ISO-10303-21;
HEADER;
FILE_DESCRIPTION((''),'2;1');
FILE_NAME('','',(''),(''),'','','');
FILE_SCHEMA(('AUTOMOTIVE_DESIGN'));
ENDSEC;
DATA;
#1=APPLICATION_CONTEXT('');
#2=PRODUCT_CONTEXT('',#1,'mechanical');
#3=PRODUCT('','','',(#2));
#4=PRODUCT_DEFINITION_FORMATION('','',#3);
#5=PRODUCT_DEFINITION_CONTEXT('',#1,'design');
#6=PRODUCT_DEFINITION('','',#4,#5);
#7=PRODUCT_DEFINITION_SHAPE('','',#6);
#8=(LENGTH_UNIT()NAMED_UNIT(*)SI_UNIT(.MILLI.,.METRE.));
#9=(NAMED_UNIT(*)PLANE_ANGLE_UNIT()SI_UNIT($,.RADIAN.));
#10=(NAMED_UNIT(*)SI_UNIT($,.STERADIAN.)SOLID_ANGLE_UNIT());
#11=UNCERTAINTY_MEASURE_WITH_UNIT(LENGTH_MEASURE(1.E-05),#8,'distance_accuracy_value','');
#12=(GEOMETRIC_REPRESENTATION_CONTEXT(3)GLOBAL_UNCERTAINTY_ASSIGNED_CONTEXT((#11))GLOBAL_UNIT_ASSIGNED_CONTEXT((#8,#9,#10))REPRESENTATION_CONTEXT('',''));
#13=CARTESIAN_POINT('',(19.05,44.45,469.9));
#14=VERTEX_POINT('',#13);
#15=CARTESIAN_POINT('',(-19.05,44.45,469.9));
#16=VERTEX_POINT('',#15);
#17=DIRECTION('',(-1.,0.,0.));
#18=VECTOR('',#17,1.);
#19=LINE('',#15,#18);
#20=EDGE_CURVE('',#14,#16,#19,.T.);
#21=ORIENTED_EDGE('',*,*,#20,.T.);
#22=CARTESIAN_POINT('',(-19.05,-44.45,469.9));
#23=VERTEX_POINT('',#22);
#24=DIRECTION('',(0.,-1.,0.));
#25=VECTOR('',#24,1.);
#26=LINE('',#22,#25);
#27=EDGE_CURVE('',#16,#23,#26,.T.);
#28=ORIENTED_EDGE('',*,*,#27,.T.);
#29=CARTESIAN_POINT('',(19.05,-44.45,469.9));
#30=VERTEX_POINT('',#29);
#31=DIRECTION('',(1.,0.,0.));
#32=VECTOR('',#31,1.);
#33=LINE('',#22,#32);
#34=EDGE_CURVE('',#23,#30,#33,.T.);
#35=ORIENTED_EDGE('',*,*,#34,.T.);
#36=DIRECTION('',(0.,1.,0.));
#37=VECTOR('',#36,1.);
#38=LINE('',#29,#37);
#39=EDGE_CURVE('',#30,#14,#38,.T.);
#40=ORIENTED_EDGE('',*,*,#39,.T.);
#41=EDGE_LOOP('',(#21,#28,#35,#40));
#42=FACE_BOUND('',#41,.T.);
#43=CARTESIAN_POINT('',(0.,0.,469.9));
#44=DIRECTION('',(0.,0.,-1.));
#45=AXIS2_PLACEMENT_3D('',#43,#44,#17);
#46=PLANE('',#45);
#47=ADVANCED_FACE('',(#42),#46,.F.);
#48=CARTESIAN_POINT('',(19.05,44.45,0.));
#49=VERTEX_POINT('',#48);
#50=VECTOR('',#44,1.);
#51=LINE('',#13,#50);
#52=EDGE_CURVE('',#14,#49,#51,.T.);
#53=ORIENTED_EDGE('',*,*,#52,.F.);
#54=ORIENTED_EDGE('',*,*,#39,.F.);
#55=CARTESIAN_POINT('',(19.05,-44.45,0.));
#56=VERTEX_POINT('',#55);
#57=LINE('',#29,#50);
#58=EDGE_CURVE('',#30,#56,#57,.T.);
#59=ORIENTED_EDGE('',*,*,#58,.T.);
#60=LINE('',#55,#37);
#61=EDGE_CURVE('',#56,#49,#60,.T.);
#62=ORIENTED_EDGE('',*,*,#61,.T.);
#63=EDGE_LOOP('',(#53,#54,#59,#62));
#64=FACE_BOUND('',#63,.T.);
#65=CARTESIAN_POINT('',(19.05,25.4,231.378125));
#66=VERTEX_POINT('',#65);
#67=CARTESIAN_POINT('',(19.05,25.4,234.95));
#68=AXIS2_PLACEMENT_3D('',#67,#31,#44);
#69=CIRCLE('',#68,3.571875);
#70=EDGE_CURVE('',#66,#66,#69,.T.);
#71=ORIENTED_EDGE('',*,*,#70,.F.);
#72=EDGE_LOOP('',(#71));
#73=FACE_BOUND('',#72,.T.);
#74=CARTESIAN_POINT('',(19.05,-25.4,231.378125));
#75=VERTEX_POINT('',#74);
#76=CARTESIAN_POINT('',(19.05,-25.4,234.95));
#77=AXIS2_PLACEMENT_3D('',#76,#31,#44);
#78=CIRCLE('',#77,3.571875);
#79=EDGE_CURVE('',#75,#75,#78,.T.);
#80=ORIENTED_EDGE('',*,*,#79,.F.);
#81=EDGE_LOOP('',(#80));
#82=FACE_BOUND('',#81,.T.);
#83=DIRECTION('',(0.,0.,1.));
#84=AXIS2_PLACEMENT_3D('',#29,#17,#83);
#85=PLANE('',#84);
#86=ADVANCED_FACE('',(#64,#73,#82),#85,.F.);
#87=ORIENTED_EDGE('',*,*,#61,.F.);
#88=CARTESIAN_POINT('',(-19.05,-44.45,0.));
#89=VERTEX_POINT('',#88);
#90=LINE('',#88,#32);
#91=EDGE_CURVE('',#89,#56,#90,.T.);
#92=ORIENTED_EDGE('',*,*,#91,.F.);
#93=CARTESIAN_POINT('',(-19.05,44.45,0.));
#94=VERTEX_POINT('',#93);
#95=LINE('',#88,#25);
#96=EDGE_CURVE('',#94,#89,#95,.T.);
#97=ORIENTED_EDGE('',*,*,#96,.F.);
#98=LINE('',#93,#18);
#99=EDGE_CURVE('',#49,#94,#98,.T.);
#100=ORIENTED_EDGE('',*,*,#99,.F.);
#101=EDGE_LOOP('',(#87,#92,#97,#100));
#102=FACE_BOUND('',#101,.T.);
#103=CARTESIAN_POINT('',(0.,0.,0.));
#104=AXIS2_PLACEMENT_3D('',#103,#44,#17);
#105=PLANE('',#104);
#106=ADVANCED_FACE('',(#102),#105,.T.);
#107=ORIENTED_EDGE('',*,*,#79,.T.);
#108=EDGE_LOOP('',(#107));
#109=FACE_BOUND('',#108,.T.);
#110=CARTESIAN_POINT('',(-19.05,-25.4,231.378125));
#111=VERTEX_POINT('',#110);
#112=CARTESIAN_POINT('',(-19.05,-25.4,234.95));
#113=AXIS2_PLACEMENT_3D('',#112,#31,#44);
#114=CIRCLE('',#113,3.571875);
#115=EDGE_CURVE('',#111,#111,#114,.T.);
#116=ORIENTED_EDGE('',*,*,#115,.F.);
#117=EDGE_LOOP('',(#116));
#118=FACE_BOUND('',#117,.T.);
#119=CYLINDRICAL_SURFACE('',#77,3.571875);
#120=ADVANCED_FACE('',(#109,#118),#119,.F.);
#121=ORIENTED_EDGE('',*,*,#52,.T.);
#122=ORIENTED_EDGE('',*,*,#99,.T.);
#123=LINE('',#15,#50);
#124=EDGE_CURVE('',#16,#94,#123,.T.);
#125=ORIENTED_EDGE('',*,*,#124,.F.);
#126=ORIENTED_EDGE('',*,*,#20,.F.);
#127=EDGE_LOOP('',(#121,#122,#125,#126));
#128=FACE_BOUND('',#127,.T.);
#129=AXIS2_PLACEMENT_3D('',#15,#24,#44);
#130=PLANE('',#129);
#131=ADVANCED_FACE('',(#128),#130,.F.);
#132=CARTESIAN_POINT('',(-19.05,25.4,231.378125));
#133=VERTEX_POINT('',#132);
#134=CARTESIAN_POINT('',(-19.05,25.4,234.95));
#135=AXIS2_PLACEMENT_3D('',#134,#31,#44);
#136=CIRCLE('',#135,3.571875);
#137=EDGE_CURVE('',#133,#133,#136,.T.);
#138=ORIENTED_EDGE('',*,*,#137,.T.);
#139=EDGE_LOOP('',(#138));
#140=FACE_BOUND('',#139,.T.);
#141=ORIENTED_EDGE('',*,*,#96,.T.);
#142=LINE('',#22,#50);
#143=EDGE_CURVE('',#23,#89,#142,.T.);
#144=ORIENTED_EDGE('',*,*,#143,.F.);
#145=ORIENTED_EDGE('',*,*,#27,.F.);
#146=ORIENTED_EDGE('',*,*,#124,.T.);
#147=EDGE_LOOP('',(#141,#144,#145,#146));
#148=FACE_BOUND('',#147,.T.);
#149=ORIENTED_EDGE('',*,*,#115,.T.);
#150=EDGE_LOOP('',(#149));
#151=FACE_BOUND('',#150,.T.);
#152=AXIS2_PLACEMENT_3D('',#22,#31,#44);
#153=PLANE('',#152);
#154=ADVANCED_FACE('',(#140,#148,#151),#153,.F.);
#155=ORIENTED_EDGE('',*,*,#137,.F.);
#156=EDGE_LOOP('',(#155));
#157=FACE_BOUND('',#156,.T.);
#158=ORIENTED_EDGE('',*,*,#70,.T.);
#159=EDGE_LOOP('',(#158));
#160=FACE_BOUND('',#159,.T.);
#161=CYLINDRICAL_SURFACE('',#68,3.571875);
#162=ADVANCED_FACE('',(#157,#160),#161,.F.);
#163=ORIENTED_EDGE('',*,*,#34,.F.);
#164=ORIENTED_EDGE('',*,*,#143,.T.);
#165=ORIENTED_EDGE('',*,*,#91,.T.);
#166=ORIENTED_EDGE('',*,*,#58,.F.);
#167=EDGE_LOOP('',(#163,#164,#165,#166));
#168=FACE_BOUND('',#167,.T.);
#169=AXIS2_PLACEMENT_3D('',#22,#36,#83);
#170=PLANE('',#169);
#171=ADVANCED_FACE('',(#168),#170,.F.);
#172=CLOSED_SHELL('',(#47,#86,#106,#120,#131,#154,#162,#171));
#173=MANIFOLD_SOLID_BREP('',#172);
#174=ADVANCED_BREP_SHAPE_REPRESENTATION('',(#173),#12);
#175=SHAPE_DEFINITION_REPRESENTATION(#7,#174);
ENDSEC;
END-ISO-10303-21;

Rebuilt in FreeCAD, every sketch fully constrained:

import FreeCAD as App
import Part
import Sketcher
from FreeCAD import Vector
Q = App.Units.Quantity


def add_polygon(sketch, points):
    """Adds a closed chain of lines whose ends are joined by coincident constraints."""
    first, n = sketch.GeometryCount, len(points)
    for a, b in zip(points, points[1:] + points[:1]):
        sketch.addGeometry(Part.LineSegment(App.Vector(*a, 0), App.Vector(*b, 0)), False)
    for i in range(n):
        sketch.addConstraint(Sketcher.Constraint("Coincident", first + i, 2, first + (i + 1) % n, 1))

doc = App.newDocument("Part")
body = doc.addObject("PartDesign::Body", "Body")

# Sketch on XY plane
sketch1 = body.newObject("Sketcher::SketchObject", "Sketch")
sketch1.AttachmentSupport = (doc.getObject("XY_Plane"), [""])
sketch1.MapMode = "FlatFace"
add_polygon(sketch1, [(-19.05, 44.45), (-19.05, -44.45), (19.05, -44.45), (19.05, 44.45)])  # lines 0-3
sketch1.addConstraint([
    Sketcher.Constraint("Vertical", 0),
    Sketcher.Constraint("Horizontal", 1),
    Sketcher.Constraint("Vertical", 2),
    Sketcher.Constraint("Horizontal", 3),
    Sketcher.Constraint("Symmetric", 0, 2, 2, 2, -1, 1),
    Sketcher.Constraint("DistanceX", 1, 1, 1, 2, Q("1.5 in")),
    Sketcher.Constraint("DistanceY", 0, 2, 0, 1, Q("3.5 in")),
])
pad1 = body.newObject("PartDesign::Pad", "Pad")
pad1.Profile = sketch1
pad1.Length = Q("18.5 in")

# Sketch on YZ plane
sketch2 = body.newObject("Sketcher::SketchObject", "Sketch001")
sketch2.AttachmentSupport = (doc.getObject("YZ_Plane"), [""])
sketch2.MapMode = "FlatFace"
sketch2.AttachmentOffset = App.Placement(Vector(0, 0, 0.75 * 25.4), App.Rotation())
sketch2.addGeometry([
    Part.Circle(Vector(25.4, 234.95, 0), Vector(0, 0, 1), 3.571875),
    Part.Circle(Vector(-25.4, 234.95, 0), Vector(0, 0, 1), 3.571875),
], False)
sketch2.addConstraint([
    Sketcher.Constraint("Equal", 0, 1),
    Sketcher.Constraint("Symmetric", 0, 3, 1, 3, -2),
    Sketcher.Constraint("Diameter", 0, Q("0.28125 in")),
    Sketcher.Constraint("DistanceX", -1, 1, 0, 3, Q("1 in")),
    Sketcher.Constraint("DistanceY", -1, 1, 0, 3, Q("9.25 in")),
])
doc.recompute()
hole = body.newObject("PartDesign::Hole", "Hole")
hole.Profile = sketch2
hole.ThreadType = "None"
hole.Diameter = Q("0.28125 in")
hole.DepthType = "ThroughAll"

doc.recompute()
